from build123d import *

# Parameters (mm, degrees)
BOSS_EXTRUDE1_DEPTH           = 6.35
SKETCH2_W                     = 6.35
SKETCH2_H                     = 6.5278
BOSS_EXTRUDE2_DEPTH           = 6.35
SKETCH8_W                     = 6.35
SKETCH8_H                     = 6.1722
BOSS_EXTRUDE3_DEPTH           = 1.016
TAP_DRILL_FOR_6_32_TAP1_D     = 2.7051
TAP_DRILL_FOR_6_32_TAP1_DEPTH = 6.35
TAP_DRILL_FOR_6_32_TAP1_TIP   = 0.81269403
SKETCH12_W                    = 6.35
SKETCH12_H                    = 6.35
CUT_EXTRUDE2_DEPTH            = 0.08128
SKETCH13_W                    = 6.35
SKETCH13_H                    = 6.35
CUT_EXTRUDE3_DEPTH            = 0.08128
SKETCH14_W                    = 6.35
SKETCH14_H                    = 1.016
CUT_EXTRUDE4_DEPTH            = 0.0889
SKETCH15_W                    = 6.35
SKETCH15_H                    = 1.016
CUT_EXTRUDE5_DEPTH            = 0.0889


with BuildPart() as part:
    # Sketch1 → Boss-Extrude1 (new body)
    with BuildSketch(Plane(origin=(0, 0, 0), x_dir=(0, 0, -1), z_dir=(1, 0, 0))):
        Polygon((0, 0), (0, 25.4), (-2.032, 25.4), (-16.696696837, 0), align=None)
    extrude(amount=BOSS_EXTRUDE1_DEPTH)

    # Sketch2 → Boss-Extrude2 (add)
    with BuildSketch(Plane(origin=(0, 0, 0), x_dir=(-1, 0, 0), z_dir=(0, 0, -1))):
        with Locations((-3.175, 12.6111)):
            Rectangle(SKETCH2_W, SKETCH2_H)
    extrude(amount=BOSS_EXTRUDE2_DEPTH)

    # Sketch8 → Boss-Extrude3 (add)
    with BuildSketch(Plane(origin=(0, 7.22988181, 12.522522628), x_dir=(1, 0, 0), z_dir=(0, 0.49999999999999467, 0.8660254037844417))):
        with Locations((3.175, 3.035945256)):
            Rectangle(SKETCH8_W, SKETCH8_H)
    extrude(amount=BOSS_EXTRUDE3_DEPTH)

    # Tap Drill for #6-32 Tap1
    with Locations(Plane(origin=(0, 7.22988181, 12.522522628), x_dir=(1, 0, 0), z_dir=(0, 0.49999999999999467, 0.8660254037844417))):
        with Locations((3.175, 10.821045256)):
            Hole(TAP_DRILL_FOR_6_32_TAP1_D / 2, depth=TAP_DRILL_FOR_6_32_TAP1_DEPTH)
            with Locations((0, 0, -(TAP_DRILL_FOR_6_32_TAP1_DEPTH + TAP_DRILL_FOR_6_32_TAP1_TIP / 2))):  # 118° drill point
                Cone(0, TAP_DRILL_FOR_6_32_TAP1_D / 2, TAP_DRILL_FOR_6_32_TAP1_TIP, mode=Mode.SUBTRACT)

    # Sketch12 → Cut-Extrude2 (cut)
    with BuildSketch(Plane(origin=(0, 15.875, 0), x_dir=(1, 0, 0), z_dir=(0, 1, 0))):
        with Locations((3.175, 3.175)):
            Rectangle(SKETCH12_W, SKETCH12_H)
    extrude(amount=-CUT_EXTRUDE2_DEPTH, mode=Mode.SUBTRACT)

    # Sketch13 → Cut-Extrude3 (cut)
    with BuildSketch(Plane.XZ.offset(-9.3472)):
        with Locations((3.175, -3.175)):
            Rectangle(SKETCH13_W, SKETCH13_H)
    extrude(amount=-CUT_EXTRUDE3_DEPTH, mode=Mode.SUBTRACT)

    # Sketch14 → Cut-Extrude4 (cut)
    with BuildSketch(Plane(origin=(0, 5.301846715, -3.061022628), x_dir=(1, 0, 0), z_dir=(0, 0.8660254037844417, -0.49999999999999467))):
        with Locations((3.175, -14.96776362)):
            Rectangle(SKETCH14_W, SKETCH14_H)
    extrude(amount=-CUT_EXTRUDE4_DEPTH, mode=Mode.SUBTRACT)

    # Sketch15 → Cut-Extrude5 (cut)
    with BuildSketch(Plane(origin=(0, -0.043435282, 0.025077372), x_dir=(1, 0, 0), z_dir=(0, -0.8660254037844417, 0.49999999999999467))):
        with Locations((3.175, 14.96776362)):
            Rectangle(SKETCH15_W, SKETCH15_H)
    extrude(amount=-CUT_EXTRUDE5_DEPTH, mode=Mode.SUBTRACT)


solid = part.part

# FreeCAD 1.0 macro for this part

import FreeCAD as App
import Part
import Sketcher
from FreeCAD import Vector
Q = App.Units.Quantity


def add_polygon(sketch, points):
    """Adds a closed chain of lines whose ends are joined by coincident constraints."""
    first, n = sketch.GeometryCount, len(points)
    for a, b in zip(points, points[1:] + points[:1]):
        sketch.addGeometry(Part.LineSegment(App.Vector(*a, 0), App.Vector(*b, 0)), False)
    for i in range(n):
        sketch.addConstraint(Sketcher.Constraint("Coincident", first + i, 2, first + (i + 1) % n, 1))

doc = App.newDocument("Part")
body = doc.addObject("PartDesign::Body", "Body")

sketch1 = doc.addObject("Sketcher::SketchObject", "Sketch")
body.addObject(sketch1)
sketch1.AttachmentSupport = (doc.YZ_Plane, [""])
sketch1.MapMode = "FlatFace"
add_polygon(sketch1, [(0, 0), (25.4, 0), (25.4, 2), (0, 16.7)])
sketch1.addConstraint(Sketcher.Constraint("Horizontal", 0))
sketch1.addConstraint(Sketcher.Constraint("Vertical", 1))
sketch1.addConstraint(Sketcher.Constraint("Vertical", 3))
sketch1.addConstraint(Sketcher.Constraint("Coincident", 3, 2, -1, 1))
sketch1.addConstraint(Sketcher.Constraint("DistanceX", 0, 1, 0, 2, Q("1 in")))
sketch1.addConstraint(Sketcher.Constraint("Angle", 2, Q("150 deg")))
sketch1.addConstraint(Sketcher.Constraint("DistanceY", 1, 1, 1, 2, Q("0.08 in")))
pad1 = doc.addObject("PartDesign::Pad", "Pad")
body.addObject(pad1)
pad1.Profile = sketch1
pad1.Length = Q("0.25 in")

sketch2 = doc.addObject("Sketcher::SketchObject", "Sketch001")
body.addObject(sketch2)
sketch2.AttachmentSupport = (doc.XY_Plane, [""])
sketch2.MapMode = "FlatFace"
add_polygon(sketch2, [(6, 16), (6, 9), (0, 9), (0, 16)])
sketch2.addConstraint(Sketcher.Constraint("Vertical", 0))
sketch2.addConstraint(Sketcher.Constraint("Horizontal", 1))
sketch2.addConstraint(Sketcher.Constraint("Vertical", 2))
sketch2.addConstraint(Sketcher.Constraint("Horizontal", 3))
sketch2.addConstraint(Sketcher.Constraint("PointOnObject", 1, 2, -2))
sketch2.addConstraint(Sketcher.Constraint("DistanceX", 1, 2, 1, 1, Q("0.25 in")))
sketch2.addConstraint(Sketcher.Constraint("DistanceY", 0, 2, 0, 1, Q("0.257 in")))
sketch2.addConstraint(Sketcher.Constraint("DistanceY", -1, 1, 0, 2, Q("0.368 in")))
pad2 = doc.addObject("PartDesign::Pad", "Pad001")
body.addObject(pad2)
pad2.Profile = sketch2
pad2.Length = Q("0.25 in")
pad2.Reversed = True

sketch3 = doc.addObject("Sketcher::SketchObject", "Sketch002")
body.addObject(sketch3)
sketch3.Placement = App.Placement(Vector(0, 7.229882, 12.522523), App.Rotation(Vector(1, 0, 0), Vector(0, 0.866025404, -0.5), Vector(0, 0.5, 0.866025404), "ZXY"))
add_polygon(sketch3, [(0, 6), (0, 0), (6, 0), (6, 6)])
sketch3.addConstraint(Sketcher.Constraint("Vertical", 0))
sketch3.addConstraint(Sketcher.Constraint("Horizontal", 1))
sketch3.addConstraint(Sketcher.Constraint("Vertical", 2))
sketch3.addConstraint(Sketcher.Constraint("Horizontal", 3))
sketch3.addConstraint(Sketcher.Constraint("PointOnObject", 0, 2, -2))
sketch3.addConstraint(Sketcher.Constraint("DistanceX", 1, 1, 1, 2, Q("0.25 in")))
sketch3.addConstraint(Sketcher.Constraint("DistanceY", 0, 2, 0, 1, Q("0.243 in")))
sketch3.addConstraint(Sketcher.Constraint("DistanceY", 0, 2, -1, 1, Q("0.050155 mm")))
pad3 = doc.addObject("PartDesign::Pad", "Pad002")
body.addObject(pad3)
pad3.Profile = sketch3
pad3.Length = Q("0.04 in")

sketch4 = doc.addObject("Sketcher::SketchObject", "Sketch003")
body.addObject(sketch4)
sketch4.Placement = App.Placement(Vector(0, 7.229882, 12.522523), App.Rotation(Vector(1, 0, 0), Vector(0, 0.866025404, -0.5), Vector(0, 0.5, 0.866025404), "ZXY"))
sketch4.addGeometry(Part.Circle(Vector(3.2, 10.8, 0), Vector(0, 0, 1), 1.4), False)
sketch4.addConstraint(Sketcher.Constraint("Diameter", 0, Q("0.1065 in")))
sketch4.addConstraint(Sketcher.Constraint("DistanceX", -1, 1, 0, 3, Q("0.125 in")))
sketch4.addConstraint(Sketcher.Constraint("DistanceY", -1, 1, 0, 3, Q("10.821045 mm")))
doc.recompute()
hole = doc.addObject("PartDesign::Hole", "Hole")
body.addObject(hole)
hole.Profile = sketch4
hole.ThreadType = "None"
hole.Diameter = Q("0.1065 in")
hole.DepthType = "Dimension"
hole.Depth = Q("0.25 in")
hole.DrillPoint = "Angled"
hole.DrillPointAngle = 118

sketch5 = doc.addObject("Sketcher::SketchObject", "Sketch004")
body.addObject(sketch5)
sketch5.AttachmentSupport = (doc.XZ_Plane, [""])
sketch5.MapMode = "FlatFace"
sketch5.AttachmentOffset = App.Placement(Vector(0, 0, -0.625 * 25.4), App.Rotation())
add_polygon(sketch5, [(0, -6), (0, 0), (6, 0), (6, -6)])
sketch5.addConstraint(Sketcher.Constraint("Vertical", 0))
sketch5.addConstraint(Sketcher.Constraint("Horizontal", 1))
sketch5.addConstraint(Sketcher.Constraint("Vertical", 2))
sketch5.addConstraint(Sketcher.Constraint("Horizontal", 3))
sketch5.addConstraint(Sketcher.Constraint("Coincident", 0, 2, -1, 1))
sketch5.addConstraint(Sketcher.Constraint("Equal", 3, 0))
sketch5.addConstraint(Sketcher.Constraint("DistanceX", 1, 1, 1, 2, Q("0.25 in")))
pocket1 = doc.addObject("PartDesign::Pocket", "Pocket")
body.addObject(pocket1)
pocket1.Profile = sketch5
pocket1.Length = Q("0.0032 in")
pocket1.Reversed = True

sketch6 = doc.addObject("Sketcher::SketchObject", "Sketch005")
body.addObject(sketch6)
sketch6.AttachmentSupport = (doc.XZ_Plane, [""])
sketch6.MapMode = "FlatFace"
sketch6.AttachmentOffset = App.Placement(Vector(0, 0, -0.368 * 25.4), App.Rotation())
add_polygon(sketch6, [(0, 0), (0, -6), (6, -6), (6, 0)])
sketch6.addConstraint(Sketcher.Constraint("Vertical", 0))
sketch6.addConstraint(Sketcher.Constraint("Horizontal", 1))
sketch6.addConstraint(Sketcher.Constraint("Vertical", 2))
sketch6.addConstraint(Sketcher.Constraint("Horizontal", 3))
sketch6.addConstraint(Sketcher.Constraint("Coincident", 3, 2, -1, 1))
sketch6.addConstraint(Sketcher.Constraint("Equal", 3, 0))
sketch6.addConstraint(Sketcher.Constraint("DistanceX", 1, 1, 1, 2, Q("0.25 in")))
pocket2 = doc.addObject("PartDesign::Pocket", "Pocket001")
body.addObject(pocket2)
pocket2.Profile = sketch6
pocket2.Length = Q("0.0032 in")

sketch7 = doc.addObject("Sketcher::SketchObject", "Sketch006")
body.addObject(sketch7)
sketch7.Placement = App.Placement(Vector(0, 5.301847, -3.061023), App.Rotation(Vector(1, 0, 0), Vector(0, -0.5, -0.866025404), Vector(0, 0.866025404, -0.5), "ZXY"))
add_polygon(sketch7, [(0, -14.5), (0, -15.5), (6.3, -15.5), (6.3, -14.5)])
sketch7.addConstraint(Sketcher.Constraint("Vertical", 0))
sketch7.addConstraint(Sketcher.Constraint("Horizontal", 1))
sketch7.addConstraint(Sketcher.Constraint("Vertical", 2))
sketch7.addConstraint(Sketcher.Constraint("Horizontal", 3))
sketch7.addConstraint(Sketcher.Constraint("PointOnObject", 0, 2, -2))
sketch7.addConstraint(Sketcher.Constraint("DistanceX", 1, 1, 1, 2, Q("0.25 in")))
sketch7.addConstraint(Sketcher.Constraint("DistanceY", 0, 2, 0, 1, Q("0.04 in")))
sketch7.addConstraint(Sketcher.Constraint("DistanceY", 0, 2, -1, 1, Q("15.475764 mm")))
pocket3 = doc.addObject("PartDesign::Pocket", "Pocket002")
body.addObject(pocket3)
pocket3.Profile = sketch7
pocket3.Length = Q("0.0035 in")

sketch8 = doc.addObject("Sketcher::SketchObject", "Sketch007")
body.addObject(sketch8)
sketch8.Placement = App.Placement(Vector(0, -0.043435, 0.025077), App.Rotation(Vector(1, 0, 0), Vector(0, 0.5, 0.866025404), Vector(0, -0.866025404, 0.5), "ZXY"))
add_polygon(sketch8, [(0, 15.5), (0, 14.5), (6.3, 14.5), (6.3, 15.5)])
sketch8.addConstraint(Sketcher.Constraint("Vertical", 0))
sketch8.addConstraint(Sketcher.Constraint("Horizontal", 1))
sketch8.addConstraint(Sketcher.Constraint("Vertical", 2))
sketch8.addConstraint(Sketcher.Constraint("Horizontal", 3))
sketch8.addConstraint(Sketcher.Constraint("PointOnObject", 0, 2, -2))
sketch8.addConstraint(Sketcher.Constraint("DistanceX", 1, 1, 1, 2, Q("0.25 in")))
sketch8.addConstraint(Sketcher.Constraint("DistanceY", 0, 2, 0, 1, Q("0.04 in")))
sketch8.addConstraint(Sketcher.Constraint("DistanceY", -1, 1, 0, 2, Q("14.459764 mm")))
pocket4 = doc.addObject("PartDesign::Pocket", "Pocket003")
body.addObject(pocket4)
pocket4.Profile = sketch8
pocket4.Length = Q("0.0035 in")

doc.recompute()
